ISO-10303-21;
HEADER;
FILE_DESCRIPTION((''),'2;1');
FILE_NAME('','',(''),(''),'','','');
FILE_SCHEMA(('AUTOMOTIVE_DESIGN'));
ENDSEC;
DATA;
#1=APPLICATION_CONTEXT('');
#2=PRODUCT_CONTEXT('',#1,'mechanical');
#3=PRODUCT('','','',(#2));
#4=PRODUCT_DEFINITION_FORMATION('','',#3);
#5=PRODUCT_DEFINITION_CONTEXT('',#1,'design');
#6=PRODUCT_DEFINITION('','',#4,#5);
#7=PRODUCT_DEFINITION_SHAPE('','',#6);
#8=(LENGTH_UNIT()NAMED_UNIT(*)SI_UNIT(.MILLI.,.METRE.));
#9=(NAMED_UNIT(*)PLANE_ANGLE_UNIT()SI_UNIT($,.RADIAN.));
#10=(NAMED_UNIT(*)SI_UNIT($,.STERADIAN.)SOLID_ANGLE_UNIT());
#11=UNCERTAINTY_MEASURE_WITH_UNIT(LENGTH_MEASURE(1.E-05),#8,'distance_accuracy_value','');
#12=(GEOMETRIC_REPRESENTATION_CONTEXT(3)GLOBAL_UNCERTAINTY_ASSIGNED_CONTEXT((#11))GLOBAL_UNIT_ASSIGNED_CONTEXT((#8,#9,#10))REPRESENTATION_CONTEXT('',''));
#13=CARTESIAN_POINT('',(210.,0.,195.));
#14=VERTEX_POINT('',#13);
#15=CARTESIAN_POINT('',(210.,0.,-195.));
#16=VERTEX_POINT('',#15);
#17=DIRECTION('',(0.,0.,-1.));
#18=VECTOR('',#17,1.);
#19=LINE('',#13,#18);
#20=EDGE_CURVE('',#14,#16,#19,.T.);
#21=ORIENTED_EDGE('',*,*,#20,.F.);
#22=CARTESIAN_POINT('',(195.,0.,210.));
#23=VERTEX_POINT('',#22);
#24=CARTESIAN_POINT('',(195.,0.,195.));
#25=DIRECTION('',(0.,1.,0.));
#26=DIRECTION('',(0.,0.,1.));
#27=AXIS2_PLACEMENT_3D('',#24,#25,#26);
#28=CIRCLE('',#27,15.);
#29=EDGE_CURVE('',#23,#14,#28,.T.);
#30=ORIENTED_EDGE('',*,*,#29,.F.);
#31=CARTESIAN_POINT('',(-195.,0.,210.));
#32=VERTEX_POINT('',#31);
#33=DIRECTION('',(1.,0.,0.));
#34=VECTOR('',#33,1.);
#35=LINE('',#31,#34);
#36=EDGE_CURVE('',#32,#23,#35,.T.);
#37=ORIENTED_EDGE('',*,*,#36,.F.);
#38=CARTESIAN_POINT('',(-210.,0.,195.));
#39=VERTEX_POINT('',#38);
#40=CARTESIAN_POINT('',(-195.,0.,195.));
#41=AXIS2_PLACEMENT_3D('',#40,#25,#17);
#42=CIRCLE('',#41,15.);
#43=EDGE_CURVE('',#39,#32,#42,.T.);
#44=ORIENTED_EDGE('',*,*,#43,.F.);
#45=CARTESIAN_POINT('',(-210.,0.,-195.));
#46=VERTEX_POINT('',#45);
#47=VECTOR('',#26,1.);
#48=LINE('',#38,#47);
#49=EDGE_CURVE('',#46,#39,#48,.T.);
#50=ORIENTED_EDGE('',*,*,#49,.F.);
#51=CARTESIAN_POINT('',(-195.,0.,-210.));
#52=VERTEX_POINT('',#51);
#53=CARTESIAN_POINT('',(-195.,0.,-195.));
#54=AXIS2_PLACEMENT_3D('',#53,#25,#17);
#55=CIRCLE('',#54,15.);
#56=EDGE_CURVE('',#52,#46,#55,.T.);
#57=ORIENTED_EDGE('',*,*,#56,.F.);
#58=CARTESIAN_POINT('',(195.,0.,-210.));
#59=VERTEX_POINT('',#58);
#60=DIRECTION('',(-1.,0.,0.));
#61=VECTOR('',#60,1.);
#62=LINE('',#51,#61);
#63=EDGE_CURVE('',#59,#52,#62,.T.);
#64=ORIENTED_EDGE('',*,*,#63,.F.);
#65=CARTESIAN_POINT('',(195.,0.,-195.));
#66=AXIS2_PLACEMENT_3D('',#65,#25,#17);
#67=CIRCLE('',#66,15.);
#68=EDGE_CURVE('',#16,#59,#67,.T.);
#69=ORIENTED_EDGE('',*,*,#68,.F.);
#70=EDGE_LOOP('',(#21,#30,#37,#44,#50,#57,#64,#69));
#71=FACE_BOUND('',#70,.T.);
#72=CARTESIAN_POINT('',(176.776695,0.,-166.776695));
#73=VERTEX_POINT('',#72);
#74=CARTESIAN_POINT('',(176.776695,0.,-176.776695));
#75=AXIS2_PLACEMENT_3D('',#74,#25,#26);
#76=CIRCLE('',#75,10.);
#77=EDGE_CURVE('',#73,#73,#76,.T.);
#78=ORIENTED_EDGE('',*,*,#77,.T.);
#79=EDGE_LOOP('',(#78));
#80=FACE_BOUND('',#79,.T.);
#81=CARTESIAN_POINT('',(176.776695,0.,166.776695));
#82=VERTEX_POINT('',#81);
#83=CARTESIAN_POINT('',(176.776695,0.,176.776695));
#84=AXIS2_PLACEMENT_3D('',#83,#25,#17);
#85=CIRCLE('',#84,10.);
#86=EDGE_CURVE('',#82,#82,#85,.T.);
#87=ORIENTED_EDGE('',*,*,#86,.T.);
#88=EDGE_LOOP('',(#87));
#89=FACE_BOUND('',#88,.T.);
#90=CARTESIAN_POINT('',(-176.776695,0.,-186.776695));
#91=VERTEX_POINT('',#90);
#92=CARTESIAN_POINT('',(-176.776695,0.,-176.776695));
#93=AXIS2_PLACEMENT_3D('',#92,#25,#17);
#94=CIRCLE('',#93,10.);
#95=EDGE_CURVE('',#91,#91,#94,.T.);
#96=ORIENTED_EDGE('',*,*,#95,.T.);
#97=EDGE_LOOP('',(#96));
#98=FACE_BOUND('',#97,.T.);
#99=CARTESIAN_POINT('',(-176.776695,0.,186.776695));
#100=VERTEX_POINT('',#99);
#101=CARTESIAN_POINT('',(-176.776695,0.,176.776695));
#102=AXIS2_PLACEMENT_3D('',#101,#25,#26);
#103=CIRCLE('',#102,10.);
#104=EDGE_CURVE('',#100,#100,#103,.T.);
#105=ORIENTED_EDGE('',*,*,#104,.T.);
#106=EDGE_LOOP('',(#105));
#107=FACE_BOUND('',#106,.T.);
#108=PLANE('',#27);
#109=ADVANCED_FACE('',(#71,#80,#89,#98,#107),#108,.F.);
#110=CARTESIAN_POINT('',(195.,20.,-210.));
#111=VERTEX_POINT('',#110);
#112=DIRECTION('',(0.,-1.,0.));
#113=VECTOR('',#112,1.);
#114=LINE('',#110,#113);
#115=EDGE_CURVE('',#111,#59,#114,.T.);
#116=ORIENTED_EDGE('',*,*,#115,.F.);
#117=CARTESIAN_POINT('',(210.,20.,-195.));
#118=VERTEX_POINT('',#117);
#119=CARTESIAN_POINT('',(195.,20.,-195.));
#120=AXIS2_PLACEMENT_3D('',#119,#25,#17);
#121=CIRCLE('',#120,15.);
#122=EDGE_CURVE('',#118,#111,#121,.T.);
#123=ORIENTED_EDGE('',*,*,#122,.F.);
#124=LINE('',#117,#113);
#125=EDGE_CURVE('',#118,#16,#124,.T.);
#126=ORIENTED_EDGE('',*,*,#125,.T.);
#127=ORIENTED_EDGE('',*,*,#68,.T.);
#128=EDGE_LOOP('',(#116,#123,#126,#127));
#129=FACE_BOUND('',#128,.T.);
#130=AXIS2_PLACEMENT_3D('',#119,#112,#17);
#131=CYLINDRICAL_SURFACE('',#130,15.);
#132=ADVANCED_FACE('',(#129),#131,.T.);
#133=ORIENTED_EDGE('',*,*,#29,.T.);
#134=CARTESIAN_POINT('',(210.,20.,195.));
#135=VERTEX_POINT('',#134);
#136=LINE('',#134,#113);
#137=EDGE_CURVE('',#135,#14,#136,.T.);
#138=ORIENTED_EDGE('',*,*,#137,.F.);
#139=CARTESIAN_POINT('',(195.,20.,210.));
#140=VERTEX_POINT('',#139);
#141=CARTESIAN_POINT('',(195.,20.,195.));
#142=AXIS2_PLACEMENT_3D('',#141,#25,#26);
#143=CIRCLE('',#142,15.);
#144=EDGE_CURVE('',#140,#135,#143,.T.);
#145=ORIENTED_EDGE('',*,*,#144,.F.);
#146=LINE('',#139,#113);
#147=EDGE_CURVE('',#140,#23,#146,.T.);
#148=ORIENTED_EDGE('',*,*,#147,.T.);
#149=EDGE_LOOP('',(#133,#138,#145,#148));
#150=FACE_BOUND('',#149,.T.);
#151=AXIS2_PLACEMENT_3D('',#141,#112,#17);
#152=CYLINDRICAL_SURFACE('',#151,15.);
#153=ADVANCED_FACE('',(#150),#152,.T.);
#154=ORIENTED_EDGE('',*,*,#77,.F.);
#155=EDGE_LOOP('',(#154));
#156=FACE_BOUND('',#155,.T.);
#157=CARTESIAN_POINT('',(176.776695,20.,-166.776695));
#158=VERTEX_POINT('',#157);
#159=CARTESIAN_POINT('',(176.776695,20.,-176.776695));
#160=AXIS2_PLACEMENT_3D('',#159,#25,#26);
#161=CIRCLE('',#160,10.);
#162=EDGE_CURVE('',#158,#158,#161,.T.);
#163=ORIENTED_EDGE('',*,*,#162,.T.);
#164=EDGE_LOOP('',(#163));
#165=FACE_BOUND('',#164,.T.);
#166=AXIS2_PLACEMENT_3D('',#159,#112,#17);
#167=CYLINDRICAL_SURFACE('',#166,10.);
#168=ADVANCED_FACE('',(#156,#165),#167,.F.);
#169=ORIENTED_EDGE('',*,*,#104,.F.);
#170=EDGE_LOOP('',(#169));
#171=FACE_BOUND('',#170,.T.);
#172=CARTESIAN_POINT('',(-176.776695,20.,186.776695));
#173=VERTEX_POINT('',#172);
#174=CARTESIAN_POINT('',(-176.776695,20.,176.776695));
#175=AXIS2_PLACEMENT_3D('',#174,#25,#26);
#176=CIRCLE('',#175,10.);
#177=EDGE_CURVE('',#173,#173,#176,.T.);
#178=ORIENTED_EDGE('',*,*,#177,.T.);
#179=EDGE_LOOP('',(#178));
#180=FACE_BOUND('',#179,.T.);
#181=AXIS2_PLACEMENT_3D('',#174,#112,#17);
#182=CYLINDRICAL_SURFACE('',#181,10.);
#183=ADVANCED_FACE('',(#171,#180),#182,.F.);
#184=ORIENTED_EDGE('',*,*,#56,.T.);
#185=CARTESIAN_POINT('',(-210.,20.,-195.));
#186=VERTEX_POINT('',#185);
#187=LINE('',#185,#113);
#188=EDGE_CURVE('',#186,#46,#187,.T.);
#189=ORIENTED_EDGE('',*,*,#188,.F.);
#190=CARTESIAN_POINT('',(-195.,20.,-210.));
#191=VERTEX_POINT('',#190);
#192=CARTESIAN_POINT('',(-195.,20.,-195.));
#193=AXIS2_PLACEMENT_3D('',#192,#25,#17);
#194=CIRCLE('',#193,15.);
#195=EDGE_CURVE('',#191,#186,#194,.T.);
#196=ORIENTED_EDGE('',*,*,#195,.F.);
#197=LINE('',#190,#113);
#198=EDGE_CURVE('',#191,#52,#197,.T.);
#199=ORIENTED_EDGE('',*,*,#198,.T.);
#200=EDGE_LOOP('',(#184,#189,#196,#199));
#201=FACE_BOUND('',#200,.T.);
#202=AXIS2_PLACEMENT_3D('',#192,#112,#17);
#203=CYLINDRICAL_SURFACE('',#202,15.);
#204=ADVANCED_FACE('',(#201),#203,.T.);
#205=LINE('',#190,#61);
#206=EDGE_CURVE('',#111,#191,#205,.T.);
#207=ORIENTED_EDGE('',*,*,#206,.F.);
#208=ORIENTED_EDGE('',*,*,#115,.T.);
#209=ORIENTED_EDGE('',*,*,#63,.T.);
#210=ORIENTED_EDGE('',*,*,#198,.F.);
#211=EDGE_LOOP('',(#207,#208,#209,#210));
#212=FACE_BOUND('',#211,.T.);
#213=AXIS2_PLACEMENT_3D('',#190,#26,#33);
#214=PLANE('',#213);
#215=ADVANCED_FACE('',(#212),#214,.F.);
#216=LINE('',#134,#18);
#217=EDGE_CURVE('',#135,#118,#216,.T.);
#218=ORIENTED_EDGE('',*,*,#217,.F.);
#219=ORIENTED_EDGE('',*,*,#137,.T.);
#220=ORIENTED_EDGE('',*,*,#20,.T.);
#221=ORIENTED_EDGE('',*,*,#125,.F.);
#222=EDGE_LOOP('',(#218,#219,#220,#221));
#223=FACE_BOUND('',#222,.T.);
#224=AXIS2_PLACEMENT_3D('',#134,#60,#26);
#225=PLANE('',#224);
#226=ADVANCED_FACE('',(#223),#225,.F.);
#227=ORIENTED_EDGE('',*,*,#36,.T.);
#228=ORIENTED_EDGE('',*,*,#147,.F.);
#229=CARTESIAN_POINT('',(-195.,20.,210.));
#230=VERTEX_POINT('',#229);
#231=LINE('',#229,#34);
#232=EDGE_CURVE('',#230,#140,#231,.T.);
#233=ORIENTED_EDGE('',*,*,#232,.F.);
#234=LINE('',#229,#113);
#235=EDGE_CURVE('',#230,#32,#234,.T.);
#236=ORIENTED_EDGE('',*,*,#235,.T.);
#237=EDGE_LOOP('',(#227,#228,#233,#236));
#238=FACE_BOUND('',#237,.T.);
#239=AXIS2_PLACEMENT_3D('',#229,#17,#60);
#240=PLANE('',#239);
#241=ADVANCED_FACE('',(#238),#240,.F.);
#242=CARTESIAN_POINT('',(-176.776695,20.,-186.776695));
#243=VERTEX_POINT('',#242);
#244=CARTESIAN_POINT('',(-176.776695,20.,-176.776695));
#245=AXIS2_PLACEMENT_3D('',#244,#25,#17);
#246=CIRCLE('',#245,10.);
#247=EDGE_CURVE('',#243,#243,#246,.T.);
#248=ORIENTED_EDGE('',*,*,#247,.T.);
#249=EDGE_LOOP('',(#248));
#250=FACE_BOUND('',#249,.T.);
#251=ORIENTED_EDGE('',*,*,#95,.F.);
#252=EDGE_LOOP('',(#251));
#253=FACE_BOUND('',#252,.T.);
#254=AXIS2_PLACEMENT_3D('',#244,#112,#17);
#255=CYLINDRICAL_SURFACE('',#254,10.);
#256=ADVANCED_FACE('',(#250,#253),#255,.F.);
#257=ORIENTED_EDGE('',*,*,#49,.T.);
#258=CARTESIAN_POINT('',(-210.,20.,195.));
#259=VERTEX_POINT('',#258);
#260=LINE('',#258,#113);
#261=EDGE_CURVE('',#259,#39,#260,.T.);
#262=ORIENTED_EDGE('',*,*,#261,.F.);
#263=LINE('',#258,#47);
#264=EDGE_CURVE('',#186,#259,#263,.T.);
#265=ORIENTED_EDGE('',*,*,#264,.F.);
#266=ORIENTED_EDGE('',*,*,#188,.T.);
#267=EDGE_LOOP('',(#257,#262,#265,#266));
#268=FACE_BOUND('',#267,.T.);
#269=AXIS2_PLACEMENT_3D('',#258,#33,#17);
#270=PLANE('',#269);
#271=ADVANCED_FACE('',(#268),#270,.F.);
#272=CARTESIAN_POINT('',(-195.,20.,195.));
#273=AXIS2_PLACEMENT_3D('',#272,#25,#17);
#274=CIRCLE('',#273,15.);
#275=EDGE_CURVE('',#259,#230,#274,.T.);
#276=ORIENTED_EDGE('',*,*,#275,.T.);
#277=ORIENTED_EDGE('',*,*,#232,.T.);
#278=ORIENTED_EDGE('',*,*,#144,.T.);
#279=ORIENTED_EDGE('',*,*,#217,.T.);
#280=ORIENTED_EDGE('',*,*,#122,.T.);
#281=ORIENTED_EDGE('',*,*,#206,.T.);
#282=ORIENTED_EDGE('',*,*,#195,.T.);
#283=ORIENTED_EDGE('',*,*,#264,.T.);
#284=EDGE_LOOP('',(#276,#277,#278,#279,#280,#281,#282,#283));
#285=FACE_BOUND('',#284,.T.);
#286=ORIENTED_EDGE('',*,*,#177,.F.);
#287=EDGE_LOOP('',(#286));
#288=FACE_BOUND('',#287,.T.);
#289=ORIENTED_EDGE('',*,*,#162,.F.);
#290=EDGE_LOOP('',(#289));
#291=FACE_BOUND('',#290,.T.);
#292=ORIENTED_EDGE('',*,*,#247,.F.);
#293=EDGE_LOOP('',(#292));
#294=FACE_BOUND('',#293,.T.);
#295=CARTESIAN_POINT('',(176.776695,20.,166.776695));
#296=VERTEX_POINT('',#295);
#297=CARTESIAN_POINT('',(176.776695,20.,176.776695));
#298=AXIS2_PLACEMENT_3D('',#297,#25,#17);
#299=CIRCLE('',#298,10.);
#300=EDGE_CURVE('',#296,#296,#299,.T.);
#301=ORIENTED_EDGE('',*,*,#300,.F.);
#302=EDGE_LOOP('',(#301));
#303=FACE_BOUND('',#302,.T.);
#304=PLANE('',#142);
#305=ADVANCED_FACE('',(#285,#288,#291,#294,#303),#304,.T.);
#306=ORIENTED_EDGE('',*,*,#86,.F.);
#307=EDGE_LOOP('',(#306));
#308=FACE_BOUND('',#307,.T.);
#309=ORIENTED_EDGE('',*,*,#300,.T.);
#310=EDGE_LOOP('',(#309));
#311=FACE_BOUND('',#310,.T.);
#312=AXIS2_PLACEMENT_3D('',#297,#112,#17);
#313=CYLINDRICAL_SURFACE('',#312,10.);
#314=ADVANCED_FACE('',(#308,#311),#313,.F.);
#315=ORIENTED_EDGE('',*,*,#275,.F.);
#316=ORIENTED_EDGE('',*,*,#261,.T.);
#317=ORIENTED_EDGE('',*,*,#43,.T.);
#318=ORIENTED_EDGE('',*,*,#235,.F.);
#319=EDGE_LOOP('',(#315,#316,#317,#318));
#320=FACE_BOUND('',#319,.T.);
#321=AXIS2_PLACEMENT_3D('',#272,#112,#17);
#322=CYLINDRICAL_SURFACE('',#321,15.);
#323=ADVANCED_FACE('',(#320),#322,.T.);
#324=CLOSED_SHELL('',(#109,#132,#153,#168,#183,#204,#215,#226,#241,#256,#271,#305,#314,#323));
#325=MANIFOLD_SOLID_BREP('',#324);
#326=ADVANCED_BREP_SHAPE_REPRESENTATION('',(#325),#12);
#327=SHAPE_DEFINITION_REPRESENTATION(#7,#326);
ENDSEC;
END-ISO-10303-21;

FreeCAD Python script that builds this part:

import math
import FreeCAD as App
import Part
import Sketcher

V = App.Vector

doc = App.newDocument("Part")
body = doc.addObject("PartDesign::Body", "Body")

# Sketch on XZ plane
sketch1 = doc.addObject("Sketcher::SketchObject", "Sketch")
body.addObject(sketch1)
sketch1.AttachmentSupport = (doc.XZ_Plane, [""])
sketch1.MapMode = "FlatFace"
sketch1.addGeometry([
    Part.LineSegment(V(-195, 210, 0), V(195, 210, 0)),  # 0
    Part.ArcOfCircle(Part.Circle(V(195, 195, 0), V(0, 0, 1), 15), math.radians(0), math.radians(90)),  # 1
    Part.LineSegment(V(210, 195, 0), V(210, -195, 0)),  # 2
    Part.ArcOfCircle(Part.Circle(V(195, -195, 0), V(0, 0, 1), 15), math.radians(-90), math.radians(0)),  # 3
    Part.LineSegment(V(195, -210, 0), V(-195, -210, 0)),  # 4
    Part.ArcOfCircle(Part.Circle(V(-195, -195, 0), V(0, 0, 1), 15), math.radians(180), math.radians(270)),  # 5
    Part.LineSegment(V(-210, -195, 0), V(-210, 195, 0)),  # 6
    Part.ArcOfCircle(Part.Circle(V(-195, 195, 0), V(0, 0, 1), 15), math.radians(90), math.radians(180)),  # 7
    Part.Circle(V(-177, 177, 0), V(0, 0, 1), 10),  # 8
    Part.Circle(V(177, 177, 0), V(0, 0, 1), 10),  # 9
    Part.Circle(V(-177, -177, 0), V(0, 0, 1), 10),  # 10
    Part.Circle(V(177, -177, 0), V(0, 0, 1), 10),  # 11
], False)
sketch1.addConstraint([
    Sketcher.Constraint("Tangent", 0, 2, 1, 2),
    Sketcher.Constraint("Tangent", 1, 1, 2, 1),
    Sketcher.Constraint("Tangent", 2, 2, 3, 2),
    Sketcher.Constraint("Tangent", 3, 1, 4, 1),
    Sketcher.Constraint("Tangent", 4, 2, 5, 2),
    Sketcher.Constraint("Tangent", 5, 1, 6, 1),
    Sketcher.Constraint("Tangent", 6, 2, 7, 2),
    Sketcher.Constraint("Tangent", 7, 1, 0, 1),
    Sketcher.Constraint("Horizontal", 0),
    Sketcher.Constraint("Vertical", 2),
    Sketcher.Constraint("Horizontal", 4),
    Sketcher.Constraint("Vertical", 6),
    Sketcher.Constraint("Equal", 1, 3),
    Sketcher.Constraint("Equal", 3, 5),
    Sketcher.Constraint("Equal", 5, 7),
    Sketcher.Constraint("Equal", 8, 9),
    Sketcher.Constraint("Equal", 9, 10),
    Sketcher.Constraint("Equal", 10, 11),
    Sketcher.Constraint("Symmetric", 1, 3, 5, 3, -1, 1),
    Sketcher.Constraint("Symmetric", 9, 3, 10, 3, -1, 1),
    Sketcher.Constraint("Symmetric", 8, 3, 11, 3, -1, 1),
    Sketcher.Constraint("Symmetric", 8, 3, 9, 3, -2),
    Sketcher.Constraint("Equal", 4, 2),
    Sketcher.Constraint("Diameter", 8, 20.0),
    Sketcher.Constraint("Radius", 1, 15.0),
    Sketcher.Constraint("DistanceX", 0, 1, 0, 2, 390.0),
    Sketcher.Constraint("DistanceX", 8, 3, 9, 3, 353.553391),
    Sketcher.Constraint("DistanceY", 10, 3, 8, 3, 353.553391),
])
pad1 = doc.addObject("PartDesign::Pad", "Pad")
body.addObject(pad1)
pad1.Profile = sketch1
pad1.Length = 20
pad1.Reversed = True

doc.recompute()
